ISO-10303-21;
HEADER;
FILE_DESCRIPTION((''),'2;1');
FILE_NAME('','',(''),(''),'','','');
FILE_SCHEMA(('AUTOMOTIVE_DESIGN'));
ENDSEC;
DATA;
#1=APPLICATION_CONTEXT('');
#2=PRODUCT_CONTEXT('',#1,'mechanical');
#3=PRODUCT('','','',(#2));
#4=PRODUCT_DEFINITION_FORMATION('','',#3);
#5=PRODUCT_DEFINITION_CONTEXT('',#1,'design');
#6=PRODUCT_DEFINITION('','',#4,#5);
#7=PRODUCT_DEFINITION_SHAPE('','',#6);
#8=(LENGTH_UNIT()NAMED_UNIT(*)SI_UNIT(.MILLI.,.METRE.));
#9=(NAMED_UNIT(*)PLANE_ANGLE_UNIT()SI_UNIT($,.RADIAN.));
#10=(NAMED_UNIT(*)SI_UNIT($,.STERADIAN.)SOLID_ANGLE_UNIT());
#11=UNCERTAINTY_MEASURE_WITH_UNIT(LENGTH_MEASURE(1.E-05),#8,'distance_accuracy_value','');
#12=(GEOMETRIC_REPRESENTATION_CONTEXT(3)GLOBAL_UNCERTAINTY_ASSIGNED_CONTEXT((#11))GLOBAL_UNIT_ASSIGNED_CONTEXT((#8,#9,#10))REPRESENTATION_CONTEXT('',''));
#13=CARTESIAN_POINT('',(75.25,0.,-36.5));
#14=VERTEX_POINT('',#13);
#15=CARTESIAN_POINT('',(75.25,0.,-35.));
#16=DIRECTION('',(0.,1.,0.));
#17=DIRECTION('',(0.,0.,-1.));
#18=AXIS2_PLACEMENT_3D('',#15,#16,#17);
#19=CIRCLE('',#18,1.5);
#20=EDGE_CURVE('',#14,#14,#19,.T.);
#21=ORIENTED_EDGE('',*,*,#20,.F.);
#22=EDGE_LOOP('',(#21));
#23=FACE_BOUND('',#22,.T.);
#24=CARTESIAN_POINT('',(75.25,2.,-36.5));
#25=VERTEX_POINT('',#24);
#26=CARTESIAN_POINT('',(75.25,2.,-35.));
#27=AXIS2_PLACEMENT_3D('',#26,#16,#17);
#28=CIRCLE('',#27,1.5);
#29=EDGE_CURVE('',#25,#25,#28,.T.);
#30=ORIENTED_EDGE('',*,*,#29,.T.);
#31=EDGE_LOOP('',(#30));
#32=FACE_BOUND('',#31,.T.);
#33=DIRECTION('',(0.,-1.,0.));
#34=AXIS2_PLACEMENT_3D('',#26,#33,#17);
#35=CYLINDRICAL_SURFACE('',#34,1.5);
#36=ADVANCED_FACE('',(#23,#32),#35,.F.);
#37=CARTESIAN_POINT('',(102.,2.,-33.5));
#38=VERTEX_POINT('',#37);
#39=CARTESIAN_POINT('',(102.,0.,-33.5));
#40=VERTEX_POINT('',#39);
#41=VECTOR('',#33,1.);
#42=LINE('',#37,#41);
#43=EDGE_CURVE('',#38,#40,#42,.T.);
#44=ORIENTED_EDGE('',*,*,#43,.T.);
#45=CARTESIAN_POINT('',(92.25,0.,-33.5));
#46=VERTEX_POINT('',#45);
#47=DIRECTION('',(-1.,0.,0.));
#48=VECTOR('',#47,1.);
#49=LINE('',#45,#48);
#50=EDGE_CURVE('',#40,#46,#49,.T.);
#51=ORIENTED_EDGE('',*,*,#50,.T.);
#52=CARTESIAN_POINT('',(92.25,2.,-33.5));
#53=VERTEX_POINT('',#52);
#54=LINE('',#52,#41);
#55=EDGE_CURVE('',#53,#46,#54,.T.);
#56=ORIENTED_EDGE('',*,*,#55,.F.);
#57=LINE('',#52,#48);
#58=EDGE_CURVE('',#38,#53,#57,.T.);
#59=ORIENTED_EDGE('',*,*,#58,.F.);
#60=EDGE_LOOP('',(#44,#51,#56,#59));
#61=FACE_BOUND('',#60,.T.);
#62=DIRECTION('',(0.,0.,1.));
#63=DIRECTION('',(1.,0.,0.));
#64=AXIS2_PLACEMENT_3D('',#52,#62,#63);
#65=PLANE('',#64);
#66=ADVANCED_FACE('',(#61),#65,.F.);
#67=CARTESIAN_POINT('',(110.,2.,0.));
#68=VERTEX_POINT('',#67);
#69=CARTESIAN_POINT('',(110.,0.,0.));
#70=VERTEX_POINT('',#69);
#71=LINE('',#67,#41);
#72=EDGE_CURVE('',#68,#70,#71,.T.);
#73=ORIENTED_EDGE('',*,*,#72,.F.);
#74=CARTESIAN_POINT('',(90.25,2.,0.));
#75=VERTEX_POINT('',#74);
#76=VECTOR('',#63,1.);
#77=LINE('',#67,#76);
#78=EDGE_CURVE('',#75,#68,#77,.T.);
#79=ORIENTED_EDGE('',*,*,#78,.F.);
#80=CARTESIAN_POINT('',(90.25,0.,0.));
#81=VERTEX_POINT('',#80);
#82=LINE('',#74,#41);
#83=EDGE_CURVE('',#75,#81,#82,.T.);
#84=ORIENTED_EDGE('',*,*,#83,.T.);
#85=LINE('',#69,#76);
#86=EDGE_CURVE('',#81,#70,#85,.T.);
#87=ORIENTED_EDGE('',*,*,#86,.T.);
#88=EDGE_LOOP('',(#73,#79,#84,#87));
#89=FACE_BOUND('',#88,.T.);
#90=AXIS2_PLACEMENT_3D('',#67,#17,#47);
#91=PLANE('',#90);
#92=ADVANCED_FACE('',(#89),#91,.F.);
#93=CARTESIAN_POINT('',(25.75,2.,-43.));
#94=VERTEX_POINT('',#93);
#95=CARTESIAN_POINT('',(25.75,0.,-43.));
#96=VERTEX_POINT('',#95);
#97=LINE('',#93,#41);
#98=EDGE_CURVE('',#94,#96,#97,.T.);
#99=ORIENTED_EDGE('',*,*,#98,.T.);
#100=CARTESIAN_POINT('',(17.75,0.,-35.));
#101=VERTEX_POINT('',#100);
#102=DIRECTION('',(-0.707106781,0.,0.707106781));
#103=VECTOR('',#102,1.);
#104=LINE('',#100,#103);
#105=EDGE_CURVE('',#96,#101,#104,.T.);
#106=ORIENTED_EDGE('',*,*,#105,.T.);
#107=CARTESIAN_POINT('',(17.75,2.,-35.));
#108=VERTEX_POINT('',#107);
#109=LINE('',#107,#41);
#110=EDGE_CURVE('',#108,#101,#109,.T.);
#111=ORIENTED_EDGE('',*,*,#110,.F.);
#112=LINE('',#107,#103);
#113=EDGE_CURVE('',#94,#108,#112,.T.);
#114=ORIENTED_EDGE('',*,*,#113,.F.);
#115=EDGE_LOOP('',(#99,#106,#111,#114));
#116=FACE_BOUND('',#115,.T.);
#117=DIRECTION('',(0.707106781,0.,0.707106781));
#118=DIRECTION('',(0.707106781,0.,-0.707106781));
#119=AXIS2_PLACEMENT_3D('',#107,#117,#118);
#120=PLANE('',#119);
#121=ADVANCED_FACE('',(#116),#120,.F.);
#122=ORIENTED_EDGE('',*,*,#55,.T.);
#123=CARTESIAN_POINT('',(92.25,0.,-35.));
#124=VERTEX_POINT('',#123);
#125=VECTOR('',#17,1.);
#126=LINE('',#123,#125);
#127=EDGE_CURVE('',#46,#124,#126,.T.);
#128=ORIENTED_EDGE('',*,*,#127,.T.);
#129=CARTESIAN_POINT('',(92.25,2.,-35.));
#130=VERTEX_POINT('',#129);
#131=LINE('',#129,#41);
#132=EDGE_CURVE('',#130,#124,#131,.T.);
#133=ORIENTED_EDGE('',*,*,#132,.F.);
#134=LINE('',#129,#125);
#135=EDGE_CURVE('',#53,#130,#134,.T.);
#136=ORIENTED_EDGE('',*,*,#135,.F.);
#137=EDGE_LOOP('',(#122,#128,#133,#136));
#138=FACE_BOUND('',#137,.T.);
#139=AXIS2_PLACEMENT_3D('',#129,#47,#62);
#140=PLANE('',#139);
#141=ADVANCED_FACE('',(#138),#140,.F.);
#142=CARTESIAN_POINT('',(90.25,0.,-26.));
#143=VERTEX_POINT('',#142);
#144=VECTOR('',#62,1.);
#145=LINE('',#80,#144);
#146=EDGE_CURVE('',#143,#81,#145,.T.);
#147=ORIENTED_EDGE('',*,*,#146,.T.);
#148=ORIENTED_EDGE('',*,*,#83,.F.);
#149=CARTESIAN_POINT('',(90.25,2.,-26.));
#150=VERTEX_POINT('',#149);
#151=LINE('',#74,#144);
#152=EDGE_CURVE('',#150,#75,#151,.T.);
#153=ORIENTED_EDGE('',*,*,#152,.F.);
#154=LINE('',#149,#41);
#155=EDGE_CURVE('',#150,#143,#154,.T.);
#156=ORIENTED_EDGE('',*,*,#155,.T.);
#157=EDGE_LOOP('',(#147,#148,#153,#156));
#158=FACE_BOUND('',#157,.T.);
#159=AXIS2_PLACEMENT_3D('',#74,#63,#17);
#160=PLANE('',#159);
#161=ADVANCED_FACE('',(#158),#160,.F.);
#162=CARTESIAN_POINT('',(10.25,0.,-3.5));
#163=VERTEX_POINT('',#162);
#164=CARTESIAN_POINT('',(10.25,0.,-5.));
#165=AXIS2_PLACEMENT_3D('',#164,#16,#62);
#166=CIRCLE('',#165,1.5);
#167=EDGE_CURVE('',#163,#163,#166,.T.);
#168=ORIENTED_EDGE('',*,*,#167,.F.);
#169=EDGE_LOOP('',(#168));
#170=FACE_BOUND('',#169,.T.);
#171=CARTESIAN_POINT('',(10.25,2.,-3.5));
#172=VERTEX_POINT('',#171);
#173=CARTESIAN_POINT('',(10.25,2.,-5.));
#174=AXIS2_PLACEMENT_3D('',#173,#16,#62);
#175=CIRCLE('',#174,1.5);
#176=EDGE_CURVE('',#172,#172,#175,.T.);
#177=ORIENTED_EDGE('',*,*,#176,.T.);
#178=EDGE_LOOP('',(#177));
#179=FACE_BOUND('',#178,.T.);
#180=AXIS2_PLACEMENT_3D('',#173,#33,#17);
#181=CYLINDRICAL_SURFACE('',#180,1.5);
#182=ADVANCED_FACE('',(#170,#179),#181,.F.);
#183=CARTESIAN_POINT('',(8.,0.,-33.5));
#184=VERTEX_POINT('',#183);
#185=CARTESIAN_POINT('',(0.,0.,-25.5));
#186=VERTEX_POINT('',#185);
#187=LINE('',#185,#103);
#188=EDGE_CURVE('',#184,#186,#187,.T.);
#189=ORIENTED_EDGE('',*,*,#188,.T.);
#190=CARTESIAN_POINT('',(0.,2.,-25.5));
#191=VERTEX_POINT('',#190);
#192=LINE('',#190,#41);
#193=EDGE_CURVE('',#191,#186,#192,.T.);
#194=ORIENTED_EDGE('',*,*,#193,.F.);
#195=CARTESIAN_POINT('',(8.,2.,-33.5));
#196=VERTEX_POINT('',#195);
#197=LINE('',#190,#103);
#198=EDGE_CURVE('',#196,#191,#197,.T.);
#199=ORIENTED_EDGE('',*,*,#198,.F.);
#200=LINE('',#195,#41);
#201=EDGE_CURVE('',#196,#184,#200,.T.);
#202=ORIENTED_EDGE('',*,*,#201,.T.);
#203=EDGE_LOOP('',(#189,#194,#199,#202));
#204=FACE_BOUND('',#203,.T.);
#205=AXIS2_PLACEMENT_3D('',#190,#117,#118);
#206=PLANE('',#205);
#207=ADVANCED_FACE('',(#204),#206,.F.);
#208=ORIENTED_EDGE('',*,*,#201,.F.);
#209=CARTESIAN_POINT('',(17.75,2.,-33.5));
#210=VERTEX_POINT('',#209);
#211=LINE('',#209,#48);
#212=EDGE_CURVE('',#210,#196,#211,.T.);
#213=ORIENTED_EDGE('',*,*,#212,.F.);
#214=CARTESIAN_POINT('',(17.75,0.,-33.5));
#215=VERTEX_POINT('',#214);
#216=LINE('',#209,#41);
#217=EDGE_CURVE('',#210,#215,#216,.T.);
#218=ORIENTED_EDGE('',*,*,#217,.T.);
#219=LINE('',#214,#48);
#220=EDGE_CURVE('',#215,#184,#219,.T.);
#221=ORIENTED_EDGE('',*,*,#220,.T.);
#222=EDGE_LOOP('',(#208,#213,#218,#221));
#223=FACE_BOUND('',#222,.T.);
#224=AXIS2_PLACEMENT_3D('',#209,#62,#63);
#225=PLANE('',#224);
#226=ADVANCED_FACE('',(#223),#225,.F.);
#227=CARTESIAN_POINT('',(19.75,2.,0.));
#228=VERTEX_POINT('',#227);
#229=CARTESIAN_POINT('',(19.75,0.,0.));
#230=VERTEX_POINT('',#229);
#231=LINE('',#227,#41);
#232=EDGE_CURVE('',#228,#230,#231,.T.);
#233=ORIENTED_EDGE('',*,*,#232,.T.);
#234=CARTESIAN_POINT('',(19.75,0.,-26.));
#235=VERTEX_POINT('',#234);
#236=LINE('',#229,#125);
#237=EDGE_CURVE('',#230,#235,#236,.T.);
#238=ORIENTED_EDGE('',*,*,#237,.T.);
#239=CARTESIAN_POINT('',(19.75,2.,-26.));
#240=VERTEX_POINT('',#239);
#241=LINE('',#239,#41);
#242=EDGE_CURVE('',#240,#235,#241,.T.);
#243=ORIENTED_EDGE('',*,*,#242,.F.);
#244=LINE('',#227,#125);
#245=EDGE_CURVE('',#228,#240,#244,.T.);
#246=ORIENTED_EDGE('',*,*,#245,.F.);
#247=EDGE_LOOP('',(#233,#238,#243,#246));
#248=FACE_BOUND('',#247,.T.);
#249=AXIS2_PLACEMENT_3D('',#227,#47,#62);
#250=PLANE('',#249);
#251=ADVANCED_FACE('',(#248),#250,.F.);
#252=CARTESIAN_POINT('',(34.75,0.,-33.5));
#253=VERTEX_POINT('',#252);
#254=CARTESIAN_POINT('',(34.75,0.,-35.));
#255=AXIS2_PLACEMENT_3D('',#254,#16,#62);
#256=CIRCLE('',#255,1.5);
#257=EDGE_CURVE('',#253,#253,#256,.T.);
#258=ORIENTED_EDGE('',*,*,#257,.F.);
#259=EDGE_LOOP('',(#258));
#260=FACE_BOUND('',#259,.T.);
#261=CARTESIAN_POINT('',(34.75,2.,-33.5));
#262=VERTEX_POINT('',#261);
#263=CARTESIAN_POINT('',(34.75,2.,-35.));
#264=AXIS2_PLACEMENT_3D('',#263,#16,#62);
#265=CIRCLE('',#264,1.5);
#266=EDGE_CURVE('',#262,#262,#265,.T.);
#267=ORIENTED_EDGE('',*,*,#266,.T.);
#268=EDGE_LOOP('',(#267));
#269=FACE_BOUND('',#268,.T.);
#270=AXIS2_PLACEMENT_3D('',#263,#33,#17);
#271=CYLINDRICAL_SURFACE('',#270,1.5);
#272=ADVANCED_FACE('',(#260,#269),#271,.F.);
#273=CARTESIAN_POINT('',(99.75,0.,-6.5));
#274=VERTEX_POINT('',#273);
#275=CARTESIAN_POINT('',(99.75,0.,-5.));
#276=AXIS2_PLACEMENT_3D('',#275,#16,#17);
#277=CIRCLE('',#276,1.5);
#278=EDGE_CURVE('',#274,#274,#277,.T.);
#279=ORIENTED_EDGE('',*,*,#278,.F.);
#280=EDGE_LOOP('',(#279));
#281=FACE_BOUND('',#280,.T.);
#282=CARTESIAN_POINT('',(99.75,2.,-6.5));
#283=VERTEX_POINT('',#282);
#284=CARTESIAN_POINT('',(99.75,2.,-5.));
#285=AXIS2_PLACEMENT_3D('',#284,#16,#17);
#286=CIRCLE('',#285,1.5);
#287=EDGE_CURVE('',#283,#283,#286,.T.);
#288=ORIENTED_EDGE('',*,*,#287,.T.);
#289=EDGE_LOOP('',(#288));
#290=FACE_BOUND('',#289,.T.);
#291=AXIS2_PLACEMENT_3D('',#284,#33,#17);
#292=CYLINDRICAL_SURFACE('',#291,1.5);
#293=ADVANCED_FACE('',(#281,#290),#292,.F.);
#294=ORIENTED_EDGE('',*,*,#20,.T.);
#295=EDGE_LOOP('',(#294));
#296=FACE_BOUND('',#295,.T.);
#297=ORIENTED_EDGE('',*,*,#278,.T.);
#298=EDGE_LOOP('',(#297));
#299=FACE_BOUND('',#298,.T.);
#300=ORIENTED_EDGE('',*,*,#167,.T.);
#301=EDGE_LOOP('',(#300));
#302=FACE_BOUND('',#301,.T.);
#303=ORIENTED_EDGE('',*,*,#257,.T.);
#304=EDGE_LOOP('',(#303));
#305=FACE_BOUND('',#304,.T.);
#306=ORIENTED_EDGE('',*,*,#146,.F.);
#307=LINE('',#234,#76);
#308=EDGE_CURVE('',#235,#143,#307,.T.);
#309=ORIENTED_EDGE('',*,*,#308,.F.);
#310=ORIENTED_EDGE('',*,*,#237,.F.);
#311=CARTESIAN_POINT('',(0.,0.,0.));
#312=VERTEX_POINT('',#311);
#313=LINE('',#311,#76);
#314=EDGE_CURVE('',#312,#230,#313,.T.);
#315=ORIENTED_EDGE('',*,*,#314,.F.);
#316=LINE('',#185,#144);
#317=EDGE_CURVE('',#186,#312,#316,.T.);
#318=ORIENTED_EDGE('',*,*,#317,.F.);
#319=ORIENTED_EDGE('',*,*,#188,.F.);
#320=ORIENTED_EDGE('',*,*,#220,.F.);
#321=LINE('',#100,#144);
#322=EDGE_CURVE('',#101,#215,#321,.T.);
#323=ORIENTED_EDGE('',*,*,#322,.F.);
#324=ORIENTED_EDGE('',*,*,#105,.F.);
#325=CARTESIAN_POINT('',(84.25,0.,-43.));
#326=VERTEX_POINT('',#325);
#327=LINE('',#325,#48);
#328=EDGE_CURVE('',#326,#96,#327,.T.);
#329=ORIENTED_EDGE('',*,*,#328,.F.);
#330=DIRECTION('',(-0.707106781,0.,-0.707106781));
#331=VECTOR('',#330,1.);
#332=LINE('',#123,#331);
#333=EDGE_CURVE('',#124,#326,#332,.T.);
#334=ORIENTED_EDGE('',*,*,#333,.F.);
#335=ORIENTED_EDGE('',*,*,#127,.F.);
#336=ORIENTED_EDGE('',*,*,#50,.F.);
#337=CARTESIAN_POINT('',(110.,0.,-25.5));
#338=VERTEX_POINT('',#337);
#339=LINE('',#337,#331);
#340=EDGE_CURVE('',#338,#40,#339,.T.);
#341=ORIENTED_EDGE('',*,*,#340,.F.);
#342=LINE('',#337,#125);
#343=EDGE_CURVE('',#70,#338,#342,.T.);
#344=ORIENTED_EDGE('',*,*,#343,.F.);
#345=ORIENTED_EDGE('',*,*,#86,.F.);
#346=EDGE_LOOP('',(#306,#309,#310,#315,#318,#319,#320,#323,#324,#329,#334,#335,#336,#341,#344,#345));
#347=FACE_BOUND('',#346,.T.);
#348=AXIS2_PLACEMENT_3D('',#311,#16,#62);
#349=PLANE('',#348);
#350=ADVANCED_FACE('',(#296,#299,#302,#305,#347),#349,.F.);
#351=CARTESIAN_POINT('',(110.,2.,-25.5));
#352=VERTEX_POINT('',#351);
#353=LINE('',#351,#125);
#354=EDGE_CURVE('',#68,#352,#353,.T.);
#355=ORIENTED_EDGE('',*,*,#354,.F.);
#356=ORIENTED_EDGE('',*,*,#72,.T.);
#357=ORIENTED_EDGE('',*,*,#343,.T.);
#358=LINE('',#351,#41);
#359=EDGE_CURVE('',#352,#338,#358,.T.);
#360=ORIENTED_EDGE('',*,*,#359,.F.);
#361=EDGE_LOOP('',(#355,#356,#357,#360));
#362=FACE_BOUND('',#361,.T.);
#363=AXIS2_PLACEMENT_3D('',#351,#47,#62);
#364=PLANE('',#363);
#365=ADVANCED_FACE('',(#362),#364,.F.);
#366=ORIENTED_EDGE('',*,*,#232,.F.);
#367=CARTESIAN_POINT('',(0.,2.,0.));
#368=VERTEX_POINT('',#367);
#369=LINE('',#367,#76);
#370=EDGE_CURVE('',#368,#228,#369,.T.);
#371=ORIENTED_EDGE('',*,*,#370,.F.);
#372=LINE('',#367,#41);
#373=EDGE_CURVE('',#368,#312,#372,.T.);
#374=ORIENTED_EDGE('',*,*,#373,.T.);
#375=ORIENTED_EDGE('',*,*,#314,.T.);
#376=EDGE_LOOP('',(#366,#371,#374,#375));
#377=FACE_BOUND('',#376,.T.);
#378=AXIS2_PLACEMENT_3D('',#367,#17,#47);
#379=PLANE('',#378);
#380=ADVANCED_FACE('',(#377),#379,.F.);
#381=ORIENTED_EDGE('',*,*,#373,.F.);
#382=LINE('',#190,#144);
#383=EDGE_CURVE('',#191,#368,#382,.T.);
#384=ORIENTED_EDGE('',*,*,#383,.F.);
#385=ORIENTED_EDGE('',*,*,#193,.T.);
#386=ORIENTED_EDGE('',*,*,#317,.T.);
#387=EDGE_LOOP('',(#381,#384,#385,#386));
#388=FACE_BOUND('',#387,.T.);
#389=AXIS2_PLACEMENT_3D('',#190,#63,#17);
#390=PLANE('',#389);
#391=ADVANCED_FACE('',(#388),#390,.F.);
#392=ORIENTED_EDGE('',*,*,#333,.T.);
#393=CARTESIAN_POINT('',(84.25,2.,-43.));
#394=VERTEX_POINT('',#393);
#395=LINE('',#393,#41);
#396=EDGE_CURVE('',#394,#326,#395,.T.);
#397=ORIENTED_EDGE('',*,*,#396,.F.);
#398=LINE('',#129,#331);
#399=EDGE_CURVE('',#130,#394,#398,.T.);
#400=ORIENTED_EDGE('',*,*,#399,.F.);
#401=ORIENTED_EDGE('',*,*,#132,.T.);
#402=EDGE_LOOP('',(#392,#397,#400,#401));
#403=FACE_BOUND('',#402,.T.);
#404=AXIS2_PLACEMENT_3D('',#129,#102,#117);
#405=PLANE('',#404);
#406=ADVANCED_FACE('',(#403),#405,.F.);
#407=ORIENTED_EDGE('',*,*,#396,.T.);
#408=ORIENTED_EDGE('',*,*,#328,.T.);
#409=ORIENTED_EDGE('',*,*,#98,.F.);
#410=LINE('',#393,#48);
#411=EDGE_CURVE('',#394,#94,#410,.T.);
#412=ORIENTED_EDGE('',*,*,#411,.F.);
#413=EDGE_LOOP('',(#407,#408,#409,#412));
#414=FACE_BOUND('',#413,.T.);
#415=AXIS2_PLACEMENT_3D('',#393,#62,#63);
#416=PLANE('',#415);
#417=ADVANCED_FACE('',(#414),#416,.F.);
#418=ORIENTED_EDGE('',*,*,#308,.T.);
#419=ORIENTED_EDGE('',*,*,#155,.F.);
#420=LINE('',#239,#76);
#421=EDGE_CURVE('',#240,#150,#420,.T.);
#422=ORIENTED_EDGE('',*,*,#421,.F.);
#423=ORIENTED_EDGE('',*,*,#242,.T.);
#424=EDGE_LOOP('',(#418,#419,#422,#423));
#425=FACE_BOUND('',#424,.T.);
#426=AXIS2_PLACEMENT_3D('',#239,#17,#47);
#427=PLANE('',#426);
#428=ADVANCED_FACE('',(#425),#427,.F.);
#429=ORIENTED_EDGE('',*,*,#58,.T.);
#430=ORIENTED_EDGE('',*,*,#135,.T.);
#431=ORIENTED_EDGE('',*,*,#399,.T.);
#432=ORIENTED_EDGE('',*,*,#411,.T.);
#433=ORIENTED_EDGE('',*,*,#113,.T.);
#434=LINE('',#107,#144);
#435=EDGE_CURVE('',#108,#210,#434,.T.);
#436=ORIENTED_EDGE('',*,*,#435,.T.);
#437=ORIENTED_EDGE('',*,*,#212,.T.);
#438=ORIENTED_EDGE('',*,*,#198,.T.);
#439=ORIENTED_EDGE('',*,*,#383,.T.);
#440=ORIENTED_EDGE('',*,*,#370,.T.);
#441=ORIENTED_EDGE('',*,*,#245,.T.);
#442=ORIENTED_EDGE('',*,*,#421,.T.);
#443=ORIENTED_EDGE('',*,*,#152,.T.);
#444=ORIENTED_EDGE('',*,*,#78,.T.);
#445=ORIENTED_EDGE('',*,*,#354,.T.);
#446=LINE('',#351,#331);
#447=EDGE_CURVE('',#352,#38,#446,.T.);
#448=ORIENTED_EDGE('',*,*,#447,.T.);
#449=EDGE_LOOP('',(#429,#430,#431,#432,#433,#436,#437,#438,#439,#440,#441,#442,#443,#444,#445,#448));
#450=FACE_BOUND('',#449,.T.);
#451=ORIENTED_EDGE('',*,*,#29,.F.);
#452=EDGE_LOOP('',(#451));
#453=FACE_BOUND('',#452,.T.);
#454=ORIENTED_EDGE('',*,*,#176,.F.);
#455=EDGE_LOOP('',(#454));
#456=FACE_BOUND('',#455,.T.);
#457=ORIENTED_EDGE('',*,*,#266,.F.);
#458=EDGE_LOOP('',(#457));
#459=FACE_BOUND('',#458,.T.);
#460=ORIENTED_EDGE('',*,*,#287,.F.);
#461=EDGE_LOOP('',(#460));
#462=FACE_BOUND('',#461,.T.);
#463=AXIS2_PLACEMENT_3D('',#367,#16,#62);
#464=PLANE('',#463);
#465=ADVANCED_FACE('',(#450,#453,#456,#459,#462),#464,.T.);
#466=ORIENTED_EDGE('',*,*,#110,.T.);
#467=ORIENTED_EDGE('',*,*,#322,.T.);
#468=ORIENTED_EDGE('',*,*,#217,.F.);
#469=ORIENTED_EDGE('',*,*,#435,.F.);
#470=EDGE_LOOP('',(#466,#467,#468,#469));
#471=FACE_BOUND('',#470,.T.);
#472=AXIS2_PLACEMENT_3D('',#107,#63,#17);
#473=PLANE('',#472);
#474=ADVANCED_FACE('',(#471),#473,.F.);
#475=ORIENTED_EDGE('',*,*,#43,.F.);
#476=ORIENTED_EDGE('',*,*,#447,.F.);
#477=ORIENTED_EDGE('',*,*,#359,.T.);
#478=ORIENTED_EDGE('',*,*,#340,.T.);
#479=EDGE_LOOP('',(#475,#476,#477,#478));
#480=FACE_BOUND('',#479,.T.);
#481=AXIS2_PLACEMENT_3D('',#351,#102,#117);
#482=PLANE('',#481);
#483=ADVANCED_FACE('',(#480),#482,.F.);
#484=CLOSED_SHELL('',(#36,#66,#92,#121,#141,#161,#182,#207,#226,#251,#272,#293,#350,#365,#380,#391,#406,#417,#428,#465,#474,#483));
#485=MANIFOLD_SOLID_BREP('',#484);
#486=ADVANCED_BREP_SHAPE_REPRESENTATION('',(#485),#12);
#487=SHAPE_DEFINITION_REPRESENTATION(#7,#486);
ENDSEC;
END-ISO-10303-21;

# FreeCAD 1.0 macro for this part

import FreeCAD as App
import Part
import Sketcher

V = App.Vector


def add_polygon(sketch, points):
    """Adds a closed chain of lines whose ends are joined by coincident constraints."""
    first, n = sketch.GeometryCount, len(points)
    for a, b in zip(points, points[1:] + points[:1]):
        sketch.addGeometry(Part.LineSegment(App.Vector(*a, 0), App.Vector(*b, 0)), False)
    for i in range(n):
        sketch.addConstraint(Sketcher.Constraint("Coincident", first + i, 2, first + (i + 1) % n, 1))

doc = App.newDocument("Part")
body = doc.addObject("PartDesign::Body", "Body")

sketch1 = body.newObject("Sketcher::SketchObject", "Sketch")
sketch1.AttachmentSupport = (doc.getObject("XZ_Plane"), [""])
sketch1.MapMode = "FlatFace"
add_polygon(sketch1, [(0, 0), (19.75, 0), (19.75, -26), (90.25, -26), (90.25, 0), (110, 0), (110, -25.5), (102, -33.5), (92.25, -33.5), (92.25, -35), (84.25, -43), (25.75, -43), (17.75, -35), (17.75, -33.5), (8, -33.5), (0, -25.5)])
sketch1.addGeometry(Part.Circle(V(10.25, -5, 0), V(0, 0, 1), 1.5), False)
sketch1.addGeometry(Part.Circle(V(99.75, -5, 0), V(0, 0, 1), 1.5), False)
sketch1.addGeometry(Part.Circle(V(34.75, -35, 0), V(0, 0, 1), 1.5), False)
sketch1.addGeometry(Part.Circle(V(75.25, -35, 0), V(0, 0, 1), 1.5), False)
sketch1.addConstraint([
    Sketcher.Constraint("Horizontal", 0),
    Sketcher.Constraint("Vertical", 1),
    Sketcher.Constraint("Horizontal", 2),
    Sketcher.Constraint("Vertical", 3),
    Sketcher.Constraint("Horizontal", 4),
    Sketcher.Constraint("Vertical", 5),
    Sketcher.Constraint("Horizontal", 7),
    Sketcher.Constraint("Vertical", 8),
    Sketcher.Constraint("Horizontal", 10),
    Sketcher.Constraint("Vertical", 12),
    Sketcher.Constraint("Horizontal", 13),
    Sketcher.Constraint("Vertical", 15),
    Sketcher.Constraint("Coincident", 15, 2, -1, 1),
    Sketcher.Constraint("Equal", 16, 17),
    Sketcher.Constraint("Equal", 17, 18),
    Sketcher.Constraint("Equal", 18, 19),
    Sketcher.Constraint("PointOnObject", 3, 2, -1),
    Sketcher.Constraint("Parallel", 6, 9),
    Sketcher.Constraint("Perpendicular", 9, 11),
    Sketcher.Constraint("Parallel", 11, 14),
    Sketcher.Constraint("Horizontal", 16, 3, 17, 3),
    Sketcher.Constraint("Horizontal", 18, 3, 19, 3),
    Sketcher.Constraint("Horizontal", 19, 3, 8, 2),
    Sketcher.Constraint("Horizontal", 8, 2, 11, 2),
    Sketcher.Constraint("Horizontal", 7, 2, 12, 2),
    Sketcher.Constraint("Horizontal", 5, 2, 14, 2),
    Sketcher.Constraint("Equal", 0, 4),
    Sketcher.Constraint("Equal", 7, 13),
    Sketcher.Constraint("Equal", 6, 9),
    Sketcher.Constraint("Equal", 9, 11),
    Sketcher.Constraint("Diameter", 16, 3.0),
    Sketcher.Constraint("DistanceY", 1, 2, 1, 1, 26.0),
    Sketcher.Constraint("DistanceX", 2, 1, 2, 2, 70.5),
    Sketcher.Constraint("DistanceX", 10, 2, 10, 1, 58.5),
    Sketcher.Constraint("DistanceY", 5, 2, 5, 1, 25.5),
    Sketcher.Constraint("DistanceY", 8, 2, 8, 1, 1.5),
    Sketcher.Constraint("DistanceY", 16, 3, -1, 1, 5.0),
    Sketcher.Constraint("DistanceY", 18, 3, -1, 1, 35.0),
    Sketcher.Constraint("DistanceX", -1, 1, 4, 2, 110.0),
    Sketcher.Constraint("DistanceX", 18, 3, 17, 3, 65.0),
    Sketcher.Constraint("DistanceX", 16, 3, 19, 3, 65.0),
    Sketcher.Constraint("DistanceX", 0, 2, 18, 3, 15.0),
    Sketcher.Constraint("DistanceX", 19, 3, 2, 2, 15.0),
])
pad1 = body.newObject("PartDesign::Pad", "Pad")
pad1.Profile = sketch1
pad1.Length = 2
pad1.Reversed = True

doc.recompute()
